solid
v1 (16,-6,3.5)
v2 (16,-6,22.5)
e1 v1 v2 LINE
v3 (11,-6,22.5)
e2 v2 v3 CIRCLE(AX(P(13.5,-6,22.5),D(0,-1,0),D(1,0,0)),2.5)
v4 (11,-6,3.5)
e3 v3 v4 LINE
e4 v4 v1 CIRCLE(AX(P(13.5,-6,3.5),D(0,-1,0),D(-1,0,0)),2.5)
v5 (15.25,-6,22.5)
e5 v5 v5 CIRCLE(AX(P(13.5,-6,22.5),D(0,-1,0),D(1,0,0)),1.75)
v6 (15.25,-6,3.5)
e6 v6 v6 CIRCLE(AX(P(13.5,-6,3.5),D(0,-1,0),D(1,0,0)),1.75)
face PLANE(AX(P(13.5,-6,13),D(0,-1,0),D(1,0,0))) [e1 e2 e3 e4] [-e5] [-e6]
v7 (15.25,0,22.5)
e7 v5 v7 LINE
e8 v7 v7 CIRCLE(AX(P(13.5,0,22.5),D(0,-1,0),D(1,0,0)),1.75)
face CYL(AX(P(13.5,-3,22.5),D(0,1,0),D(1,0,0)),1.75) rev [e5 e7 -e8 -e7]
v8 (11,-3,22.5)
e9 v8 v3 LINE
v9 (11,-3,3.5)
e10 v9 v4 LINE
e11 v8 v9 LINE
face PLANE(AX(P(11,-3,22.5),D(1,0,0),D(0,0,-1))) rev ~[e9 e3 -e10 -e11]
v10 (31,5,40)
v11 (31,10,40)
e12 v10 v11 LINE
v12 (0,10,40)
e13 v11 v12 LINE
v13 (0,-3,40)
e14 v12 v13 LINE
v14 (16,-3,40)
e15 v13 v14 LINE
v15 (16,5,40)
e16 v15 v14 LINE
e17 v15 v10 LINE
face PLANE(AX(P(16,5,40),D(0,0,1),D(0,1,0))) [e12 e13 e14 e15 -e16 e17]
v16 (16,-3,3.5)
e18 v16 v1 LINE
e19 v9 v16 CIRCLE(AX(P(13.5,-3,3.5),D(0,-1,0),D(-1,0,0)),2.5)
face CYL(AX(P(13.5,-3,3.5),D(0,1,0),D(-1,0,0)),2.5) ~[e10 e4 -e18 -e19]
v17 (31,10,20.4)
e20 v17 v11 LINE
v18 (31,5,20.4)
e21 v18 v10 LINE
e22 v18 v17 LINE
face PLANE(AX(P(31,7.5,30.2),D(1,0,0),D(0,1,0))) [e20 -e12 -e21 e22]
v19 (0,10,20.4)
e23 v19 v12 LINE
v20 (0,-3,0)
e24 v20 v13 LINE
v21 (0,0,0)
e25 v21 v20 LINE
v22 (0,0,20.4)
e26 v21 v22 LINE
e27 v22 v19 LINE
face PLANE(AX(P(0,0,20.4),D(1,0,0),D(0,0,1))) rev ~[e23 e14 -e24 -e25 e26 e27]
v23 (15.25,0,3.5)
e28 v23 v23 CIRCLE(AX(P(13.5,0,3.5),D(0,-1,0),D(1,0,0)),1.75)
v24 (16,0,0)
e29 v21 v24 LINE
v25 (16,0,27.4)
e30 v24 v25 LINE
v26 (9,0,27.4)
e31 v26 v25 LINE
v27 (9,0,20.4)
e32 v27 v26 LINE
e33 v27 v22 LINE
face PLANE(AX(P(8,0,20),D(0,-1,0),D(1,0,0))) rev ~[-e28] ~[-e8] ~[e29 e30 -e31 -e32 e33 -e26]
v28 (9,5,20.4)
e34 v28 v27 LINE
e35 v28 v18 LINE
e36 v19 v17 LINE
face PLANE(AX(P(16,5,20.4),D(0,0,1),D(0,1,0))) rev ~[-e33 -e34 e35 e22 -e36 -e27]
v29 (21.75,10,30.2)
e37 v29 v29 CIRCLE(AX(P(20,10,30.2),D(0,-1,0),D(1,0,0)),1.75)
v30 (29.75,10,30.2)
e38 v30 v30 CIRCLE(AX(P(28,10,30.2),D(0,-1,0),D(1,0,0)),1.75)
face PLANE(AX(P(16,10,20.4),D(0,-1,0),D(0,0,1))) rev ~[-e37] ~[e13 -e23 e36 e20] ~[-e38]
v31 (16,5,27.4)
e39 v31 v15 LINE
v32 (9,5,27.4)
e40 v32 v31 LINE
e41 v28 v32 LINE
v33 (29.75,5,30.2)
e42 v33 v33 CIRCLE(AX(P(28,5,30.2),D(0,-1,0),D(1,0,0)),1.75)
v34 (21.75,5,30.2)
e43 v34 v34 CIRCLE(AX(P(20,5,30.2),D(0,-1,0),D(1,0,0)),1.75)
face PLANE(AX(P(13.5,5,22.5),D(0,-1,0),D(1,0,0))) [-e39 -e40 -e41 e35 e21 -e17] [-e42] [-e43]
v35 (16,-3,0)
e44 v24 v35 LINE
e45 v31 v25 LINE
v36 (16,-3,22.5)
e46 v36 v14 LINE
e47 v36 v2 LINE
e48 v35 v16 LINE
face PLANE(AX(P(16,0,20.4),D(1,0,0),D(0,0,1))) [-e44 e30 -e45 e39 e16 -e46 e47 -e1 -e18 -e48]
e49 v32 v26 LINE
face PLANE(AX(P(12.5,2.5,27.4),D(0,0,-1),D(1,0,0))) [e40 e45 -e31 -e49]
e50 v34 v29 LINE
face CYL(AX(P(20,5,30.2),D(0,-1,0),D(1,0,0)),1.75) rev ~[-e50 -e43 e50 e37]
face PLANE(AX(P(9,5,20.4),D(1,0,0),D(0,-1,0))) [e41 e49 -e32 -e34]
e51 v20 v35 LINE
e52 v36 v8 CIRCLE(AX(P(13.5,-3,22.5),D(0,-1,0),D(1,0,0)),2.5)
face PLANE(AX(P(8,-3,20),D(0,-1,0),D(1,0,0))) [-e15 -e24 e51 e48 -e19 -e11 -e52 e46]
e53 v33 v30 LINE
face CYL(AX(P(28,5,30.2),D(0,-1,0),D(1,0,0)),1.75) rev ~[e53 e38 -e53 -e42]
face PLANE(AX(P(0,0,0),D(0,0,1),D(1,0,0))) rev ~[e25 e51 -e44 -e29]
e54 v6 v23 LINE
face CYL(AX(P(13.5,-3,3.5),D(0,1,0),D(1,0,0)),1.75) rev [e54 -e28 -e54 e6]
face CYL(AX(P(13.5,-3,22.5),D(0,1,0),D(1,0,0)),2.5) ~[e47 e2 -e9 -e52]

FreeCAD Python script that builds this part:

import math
import FreeCAD as App
import Part
import Sketcher
Q = App.Units.Quantity


def add_polygon(sketch, points):
    """Adds a closed chain of lines whose ends are joined by coincident constraints."""
    first, n = sketch.GeometryCount, len(points)
    for a, b in zip(points, points[1:] + points[:1]):
        sketch.addGeometry(Part.LineSegment(App.Vector(*a, 0), App.Vector(*b, 0)), False)
    for i in range(n):
        sketch.addConstraint(Sketcher.Constraint("Coincident", first + i, 2, first + (i + 1) % n, 1))

doc = App.newDocument("Part")
body = doc.addObject("PartDesign::Body", "Body")

sketch1 = body.newObject("Sketcher::SketchObject", "Sketch")
sketch1.AttachmentSupport = (doc.getObject("XZ_Plane"), [""])
sketch1.MapMode = "FlatFace"
add_polygon(sketch1, [(0, 40), (0, 0), (16, 0), (16, 40)])
sketch1.addGeometry(Part.Circle(App.Vector(13.5, 3.5, 0), App.Vector(0, 0, 1), 1.8), False)
sketch1.addGeometry(Part.Circle(App.Vector(13.5, 22.5, 0), App.Vector(0, 0, 1), 1.8), False)
sketch1.addConstraint([
    Sketcher.Constraint("Vertical", 0),
    Sketcher.Constraint("Horizontal", 1),
    Sketcher.Constraint("Vertical", 2),
    Sketcher.Constraint("Horizontal", 3),
    Sketcher.Constraint("Coincident", 0, 2, -1, 1),
    Sketcher.Constraint("Equal", 4, 5),
    Sketcher.Constraint("Vertical", 4, 3, 5, 3),
    Sketcher.Constraint("Diameter", 4, Q("3.5 mm")),
    Sketcher.Constraint("DistanceX", 1, 1, 1, 2, Q("16 mm")),
    Sketcher.Constraint("DistanceY", 0, 2, 0, 1, Q("40 mm")),
    Sketcher.Constraint("DistanceY", 4, 3, 5, 3, Q("19 mm")),
    Sketcher.Constraint("DistanceX", -1, 1, 4, 3, Q("13.5 mm")),
    Sketcher.Constraint("DistanceY", -1, 1, 4, 3, Q("3.5 mm")),
])
pad1 = body.newObject("PartDesign::Pad", "Pad")
pad1.Profile = sketch1
pad1.Length = 3

sketch2 = body.newObject("Sketcher::SketchObject", "Sketch001")
sketch2.AttachmentSupport = (doc.getObject("XZ_Plane"), [""])
sketch2.MapMode = "FlatFace"
sketch2.AttachmentOffset = App.Placement(App.Vector(0, 0, 3), App.Rotation())
sketch2.addGeometry([
    Part.ArcOfCircle(Part.Circle(App.Vector(13.5, 3.5, 0), App.Vector(0, 0, 1), 2.5), math.radians(180), math.radians(360)),
    Part.LineSegment(App.Vector(16, 3.5, 0), App.Vector(16, 22.5, 0)),
    Part.ArcOfCircle(Part.Circle(App.Vector(13.5, 22.5, 0), App.Vector(0, 0, 1), 2.5), math.radians(0), math.radians(180)),
    Part.LineSegment(App.Vector(11, 22.5, 0), App.Vector(11, 3.5, 0)),
    Part.Circle(App.Vector(13.5, 3.5, 0), App.Vector(0, 0, 1), 1.8),
    Part.Circle(App.Vector(13.5, 22.5, 0), App.Vector(0, 0, 1), 1.8),
], False)
sketch2.addConstraint([
    Sketcher.Constraint("Tangent", 0, 2, 1, 1),
    Sketcher.Constraint("Tangent", 1, 2, 2, 1),
    Sketcher.Constraint("Tangent", 2, 2, 3, 1),
    Sketcher.Constraint("Tangent", 3, 2, 0, 1),
    Sketcher.Constraint("Vertical", 1),
    Sketcher.Constraint("Vertical", 3),
    Sketcher.Constraint("Coincident", 4, 3, 0, 3),
    Sketcher.Constraint("Coincident", 5, 3, 2, 3),
    Sketcher.Constraint("Equal", 4, 5),
    Sketcher.Constraint("Diameter", 4, Q("3.5 mm")),
    Sketcher.Constraint("Radius", 0, Q("2.5 mm")),
    Sketcher.Constraint("DistanceY", 1, 1, 1, 2, Q("19 mm")),
    Sketcher.Constraint("DistanceX", -1, 1, 0, 2, Q("16 mm")),
    Sketcher.Constraint("DistanceY", -1, 1, 0, 3, Q("3.5 mm")),
])
pad2 = body.newObject("PartDesign::Pad", "Pad001")
pad2.Profile = sketch2
pad2.Length = 3

sketch3 = body.newObject("Sketcher::SketchObject", "Sketch002")
sketch3.AttachmentSupport = (doc.getObject("XZ_Plane"), [""])
sketch3.MapMode = "FlatFace"
add_polygon(sketch3, [(16, 40), (16, 20.4), (0, 20.4), (0, 40)])
sketch3.addGeometry(Part.Circle(App.Vector(13.5, 22.5, 0), App.Vector(0, 0, 1), 1.8), False)
sketch3.addConstraint([
    Sketcher.Constraint("Vertical", 0),
    Sketcher.Constraint("Horizontal", 1),
    Sketcher.Constraint("Vertical", 2),
    Sketcher.Constraint("Horizontal", 3),
    Sketcher.Constraint("PointOnObject", 1, 2, -2),
    Sketcher.Constraint("Diameter", 4, Q("3.5 mm")),
    Sketcher.Constraint("DistanceX", 1, 2, 1, 1, Q("16 mm")),
    Sketcher.Constraint("DistanceY", 0, 2, 0, 1, Q("19.6 mm")),
    Sketcher.Constraint("DistanceY", -1, 1, 2, 2, Q("40 mm")),
    Sketcher.Constraint("DistanceX", -1, 1, 4, 3, Q("13.5 mm")),
    Sketcher.Constraint("DistanceY", -1, 1, 4, 3, Q("22.5 mm")),
])
pad3 = body.newObject("PartDesign::Pad", "Pad002")
pad3.Profile = sketch3
pad3.Length = 10
pad3.Reversed = True

sketch4 = body.newObject("Sketcher::SketchObject", "Sketch003")
sketch4.AttachmentSupport = (doc.getObject("YZ_Plane"), [""])
sketch4.MapMode = "FlatFace"
sketch4.AttachmentOffset = App.Placement(App.Vector(0, 0, 16), App.Rotation())
add_polygon(sketch4, [(5, 40), (5, 20), (10, 20), (10, 40)])
sketch4.addConstraint([
    Sketcher.Constraint("Vertical", 0),
    Sketcher.Constraint("Horizontal", 1),
    Sketcher.Constraint("Vertical", 2),
    Sketcher.Constraint("Horizontal", 3),
    Sketcher.Constraint("DistanceX", 1, 1, 1, 2, Q("5 mm")),
    Sketcher.Constraint("DistanceY", 0, 2, 0, 1, Q("19.6 mm")),
    Sketcher.Constraint("DistanceX", -1, 1, 0, 2, Q("5 mm")),
    Sketcher.Constraint("DistanceY", -1, 1, 2, 2, Q("40 mm")),
])
pad4 = body.newObject("PartDesign::Pad", "Pad003")
pad4.Profile = sketch4
pad4.Length = 15

sketch5 = body.newObject("Sketcher::SketchObject", "Sketch004")
sketch5.AttachmentSupport = (doc.getObject("XZ_Plane"), [""])
sketch5.MapMode = "FlatFace"
sketch5.AttachmentOffset = App.Placement(App.Vector(0, 0, -5), App.Rotation())
sketch5.addGeometry([
    Part.Circle(App.Vector(20, 30.2, 0), App.Vector(0, 0, 1), 1.8),
    Part.Circle(App.Vector(28, 30.2, 0), App.Vector(0, 0, 1), 1.8),
], False)
sketch5.addConstraint([
    Sketcher.Constraint("Equal", 0, 1),
    Sketcher.Constraint("Horizontal", 0, 3, 1, 3),
    Sketcher.Constraint("Diameter", 0, Q("3.5 mm")),
    Sketcher.Constraint("DistanceX", -1, 1, 0, 3, Q("20 mm")),
    Sketcher.Constraint("DistanceX", -1, 1, 1, 3, Q("28 mm")),
    Sketcher.Constraint("DistanceY", -1, 1, 0, 3, Q("30.2 mm")),
])
pocket1 = body.newObject("PartDesign::Pocket", "Pocket")
pocket1.Profile = sketch5
pocket1.Type = "ThroughAll"

sketch6 = body.newObject("Sketcher::SketchObject", "Sketch005")
sketch6.AttachmentSupport = (doc.getObject("XY_Plane"), [""])
sketch6.MapMode = "FlatFace"
sketch6.AttachmentOffset = App.Placement(App.Vector(0, 0, 20.4), App.Rotation())
add_polygon(sketch6, [(9, 0), (9, 5), (16, 5), (16, 0)])
sketch6.addConstraint([
    Sketcher.Constraint("Vertical", 0),
    Sketcher.Constraint("Horizontal", 1),
    Sketcher.Constraint("Vertical", 2),
    Sketcher.Constraint("Horizontal", 3),
    Sketcher.Constraint("PointOnObject", 2, 2, -1),
    Sketcher.Constraint("DistanceX", 1, 1, 1, 2, Q("7 mm")),
    Sketcher.Constraint("DistanceY", 0, 1, 0, 2, Q("5 mm")),
    Sketcher.Constraint("DistanceX", -1, 1, 0, 2, Q("9 mm")),
])
pocket2 = body.newObject("PartDesign::Pocket", "Pocket001")
pocket2.Profile = sketch6
pocket2.Length = 7
pocket2.Reversed = True

sketch7 = body.newObject("Sketcher::SketchObject", "Sketch006")
sketch7.AttachmentSupport = (doc.getObject("XZ_Plane"), [""])
sketch7.MapMode = "FlatFace"
sketch7.AttachmentOffset = App.Placement(App.Vector(0, 0, -5), App.Rotation())
sketch7.addGeometry(Part.Circle(App.Vector(13.5, 22.5, 0), App.Vector(0, 0, 1), 1.8), False)
sketch7.addConstraint([
    Sketcher.Constraint("Diameter", 0, Q("3.5 mm")),
    Sketcher.Constraint("DistanceX", -1, 1, 0, 3, Q("13.5 mm")),
    Sketcher.Constraint("DistanceY", -1, 1, 0, 3, Q("22.5 mm")),
])
pad5 = body.newObject("PartDesign::Pad", "Pad004")
pad5.Profile = sketch7
pad5.Length = 5
pad5.Reversed = True

doc.recompute()
